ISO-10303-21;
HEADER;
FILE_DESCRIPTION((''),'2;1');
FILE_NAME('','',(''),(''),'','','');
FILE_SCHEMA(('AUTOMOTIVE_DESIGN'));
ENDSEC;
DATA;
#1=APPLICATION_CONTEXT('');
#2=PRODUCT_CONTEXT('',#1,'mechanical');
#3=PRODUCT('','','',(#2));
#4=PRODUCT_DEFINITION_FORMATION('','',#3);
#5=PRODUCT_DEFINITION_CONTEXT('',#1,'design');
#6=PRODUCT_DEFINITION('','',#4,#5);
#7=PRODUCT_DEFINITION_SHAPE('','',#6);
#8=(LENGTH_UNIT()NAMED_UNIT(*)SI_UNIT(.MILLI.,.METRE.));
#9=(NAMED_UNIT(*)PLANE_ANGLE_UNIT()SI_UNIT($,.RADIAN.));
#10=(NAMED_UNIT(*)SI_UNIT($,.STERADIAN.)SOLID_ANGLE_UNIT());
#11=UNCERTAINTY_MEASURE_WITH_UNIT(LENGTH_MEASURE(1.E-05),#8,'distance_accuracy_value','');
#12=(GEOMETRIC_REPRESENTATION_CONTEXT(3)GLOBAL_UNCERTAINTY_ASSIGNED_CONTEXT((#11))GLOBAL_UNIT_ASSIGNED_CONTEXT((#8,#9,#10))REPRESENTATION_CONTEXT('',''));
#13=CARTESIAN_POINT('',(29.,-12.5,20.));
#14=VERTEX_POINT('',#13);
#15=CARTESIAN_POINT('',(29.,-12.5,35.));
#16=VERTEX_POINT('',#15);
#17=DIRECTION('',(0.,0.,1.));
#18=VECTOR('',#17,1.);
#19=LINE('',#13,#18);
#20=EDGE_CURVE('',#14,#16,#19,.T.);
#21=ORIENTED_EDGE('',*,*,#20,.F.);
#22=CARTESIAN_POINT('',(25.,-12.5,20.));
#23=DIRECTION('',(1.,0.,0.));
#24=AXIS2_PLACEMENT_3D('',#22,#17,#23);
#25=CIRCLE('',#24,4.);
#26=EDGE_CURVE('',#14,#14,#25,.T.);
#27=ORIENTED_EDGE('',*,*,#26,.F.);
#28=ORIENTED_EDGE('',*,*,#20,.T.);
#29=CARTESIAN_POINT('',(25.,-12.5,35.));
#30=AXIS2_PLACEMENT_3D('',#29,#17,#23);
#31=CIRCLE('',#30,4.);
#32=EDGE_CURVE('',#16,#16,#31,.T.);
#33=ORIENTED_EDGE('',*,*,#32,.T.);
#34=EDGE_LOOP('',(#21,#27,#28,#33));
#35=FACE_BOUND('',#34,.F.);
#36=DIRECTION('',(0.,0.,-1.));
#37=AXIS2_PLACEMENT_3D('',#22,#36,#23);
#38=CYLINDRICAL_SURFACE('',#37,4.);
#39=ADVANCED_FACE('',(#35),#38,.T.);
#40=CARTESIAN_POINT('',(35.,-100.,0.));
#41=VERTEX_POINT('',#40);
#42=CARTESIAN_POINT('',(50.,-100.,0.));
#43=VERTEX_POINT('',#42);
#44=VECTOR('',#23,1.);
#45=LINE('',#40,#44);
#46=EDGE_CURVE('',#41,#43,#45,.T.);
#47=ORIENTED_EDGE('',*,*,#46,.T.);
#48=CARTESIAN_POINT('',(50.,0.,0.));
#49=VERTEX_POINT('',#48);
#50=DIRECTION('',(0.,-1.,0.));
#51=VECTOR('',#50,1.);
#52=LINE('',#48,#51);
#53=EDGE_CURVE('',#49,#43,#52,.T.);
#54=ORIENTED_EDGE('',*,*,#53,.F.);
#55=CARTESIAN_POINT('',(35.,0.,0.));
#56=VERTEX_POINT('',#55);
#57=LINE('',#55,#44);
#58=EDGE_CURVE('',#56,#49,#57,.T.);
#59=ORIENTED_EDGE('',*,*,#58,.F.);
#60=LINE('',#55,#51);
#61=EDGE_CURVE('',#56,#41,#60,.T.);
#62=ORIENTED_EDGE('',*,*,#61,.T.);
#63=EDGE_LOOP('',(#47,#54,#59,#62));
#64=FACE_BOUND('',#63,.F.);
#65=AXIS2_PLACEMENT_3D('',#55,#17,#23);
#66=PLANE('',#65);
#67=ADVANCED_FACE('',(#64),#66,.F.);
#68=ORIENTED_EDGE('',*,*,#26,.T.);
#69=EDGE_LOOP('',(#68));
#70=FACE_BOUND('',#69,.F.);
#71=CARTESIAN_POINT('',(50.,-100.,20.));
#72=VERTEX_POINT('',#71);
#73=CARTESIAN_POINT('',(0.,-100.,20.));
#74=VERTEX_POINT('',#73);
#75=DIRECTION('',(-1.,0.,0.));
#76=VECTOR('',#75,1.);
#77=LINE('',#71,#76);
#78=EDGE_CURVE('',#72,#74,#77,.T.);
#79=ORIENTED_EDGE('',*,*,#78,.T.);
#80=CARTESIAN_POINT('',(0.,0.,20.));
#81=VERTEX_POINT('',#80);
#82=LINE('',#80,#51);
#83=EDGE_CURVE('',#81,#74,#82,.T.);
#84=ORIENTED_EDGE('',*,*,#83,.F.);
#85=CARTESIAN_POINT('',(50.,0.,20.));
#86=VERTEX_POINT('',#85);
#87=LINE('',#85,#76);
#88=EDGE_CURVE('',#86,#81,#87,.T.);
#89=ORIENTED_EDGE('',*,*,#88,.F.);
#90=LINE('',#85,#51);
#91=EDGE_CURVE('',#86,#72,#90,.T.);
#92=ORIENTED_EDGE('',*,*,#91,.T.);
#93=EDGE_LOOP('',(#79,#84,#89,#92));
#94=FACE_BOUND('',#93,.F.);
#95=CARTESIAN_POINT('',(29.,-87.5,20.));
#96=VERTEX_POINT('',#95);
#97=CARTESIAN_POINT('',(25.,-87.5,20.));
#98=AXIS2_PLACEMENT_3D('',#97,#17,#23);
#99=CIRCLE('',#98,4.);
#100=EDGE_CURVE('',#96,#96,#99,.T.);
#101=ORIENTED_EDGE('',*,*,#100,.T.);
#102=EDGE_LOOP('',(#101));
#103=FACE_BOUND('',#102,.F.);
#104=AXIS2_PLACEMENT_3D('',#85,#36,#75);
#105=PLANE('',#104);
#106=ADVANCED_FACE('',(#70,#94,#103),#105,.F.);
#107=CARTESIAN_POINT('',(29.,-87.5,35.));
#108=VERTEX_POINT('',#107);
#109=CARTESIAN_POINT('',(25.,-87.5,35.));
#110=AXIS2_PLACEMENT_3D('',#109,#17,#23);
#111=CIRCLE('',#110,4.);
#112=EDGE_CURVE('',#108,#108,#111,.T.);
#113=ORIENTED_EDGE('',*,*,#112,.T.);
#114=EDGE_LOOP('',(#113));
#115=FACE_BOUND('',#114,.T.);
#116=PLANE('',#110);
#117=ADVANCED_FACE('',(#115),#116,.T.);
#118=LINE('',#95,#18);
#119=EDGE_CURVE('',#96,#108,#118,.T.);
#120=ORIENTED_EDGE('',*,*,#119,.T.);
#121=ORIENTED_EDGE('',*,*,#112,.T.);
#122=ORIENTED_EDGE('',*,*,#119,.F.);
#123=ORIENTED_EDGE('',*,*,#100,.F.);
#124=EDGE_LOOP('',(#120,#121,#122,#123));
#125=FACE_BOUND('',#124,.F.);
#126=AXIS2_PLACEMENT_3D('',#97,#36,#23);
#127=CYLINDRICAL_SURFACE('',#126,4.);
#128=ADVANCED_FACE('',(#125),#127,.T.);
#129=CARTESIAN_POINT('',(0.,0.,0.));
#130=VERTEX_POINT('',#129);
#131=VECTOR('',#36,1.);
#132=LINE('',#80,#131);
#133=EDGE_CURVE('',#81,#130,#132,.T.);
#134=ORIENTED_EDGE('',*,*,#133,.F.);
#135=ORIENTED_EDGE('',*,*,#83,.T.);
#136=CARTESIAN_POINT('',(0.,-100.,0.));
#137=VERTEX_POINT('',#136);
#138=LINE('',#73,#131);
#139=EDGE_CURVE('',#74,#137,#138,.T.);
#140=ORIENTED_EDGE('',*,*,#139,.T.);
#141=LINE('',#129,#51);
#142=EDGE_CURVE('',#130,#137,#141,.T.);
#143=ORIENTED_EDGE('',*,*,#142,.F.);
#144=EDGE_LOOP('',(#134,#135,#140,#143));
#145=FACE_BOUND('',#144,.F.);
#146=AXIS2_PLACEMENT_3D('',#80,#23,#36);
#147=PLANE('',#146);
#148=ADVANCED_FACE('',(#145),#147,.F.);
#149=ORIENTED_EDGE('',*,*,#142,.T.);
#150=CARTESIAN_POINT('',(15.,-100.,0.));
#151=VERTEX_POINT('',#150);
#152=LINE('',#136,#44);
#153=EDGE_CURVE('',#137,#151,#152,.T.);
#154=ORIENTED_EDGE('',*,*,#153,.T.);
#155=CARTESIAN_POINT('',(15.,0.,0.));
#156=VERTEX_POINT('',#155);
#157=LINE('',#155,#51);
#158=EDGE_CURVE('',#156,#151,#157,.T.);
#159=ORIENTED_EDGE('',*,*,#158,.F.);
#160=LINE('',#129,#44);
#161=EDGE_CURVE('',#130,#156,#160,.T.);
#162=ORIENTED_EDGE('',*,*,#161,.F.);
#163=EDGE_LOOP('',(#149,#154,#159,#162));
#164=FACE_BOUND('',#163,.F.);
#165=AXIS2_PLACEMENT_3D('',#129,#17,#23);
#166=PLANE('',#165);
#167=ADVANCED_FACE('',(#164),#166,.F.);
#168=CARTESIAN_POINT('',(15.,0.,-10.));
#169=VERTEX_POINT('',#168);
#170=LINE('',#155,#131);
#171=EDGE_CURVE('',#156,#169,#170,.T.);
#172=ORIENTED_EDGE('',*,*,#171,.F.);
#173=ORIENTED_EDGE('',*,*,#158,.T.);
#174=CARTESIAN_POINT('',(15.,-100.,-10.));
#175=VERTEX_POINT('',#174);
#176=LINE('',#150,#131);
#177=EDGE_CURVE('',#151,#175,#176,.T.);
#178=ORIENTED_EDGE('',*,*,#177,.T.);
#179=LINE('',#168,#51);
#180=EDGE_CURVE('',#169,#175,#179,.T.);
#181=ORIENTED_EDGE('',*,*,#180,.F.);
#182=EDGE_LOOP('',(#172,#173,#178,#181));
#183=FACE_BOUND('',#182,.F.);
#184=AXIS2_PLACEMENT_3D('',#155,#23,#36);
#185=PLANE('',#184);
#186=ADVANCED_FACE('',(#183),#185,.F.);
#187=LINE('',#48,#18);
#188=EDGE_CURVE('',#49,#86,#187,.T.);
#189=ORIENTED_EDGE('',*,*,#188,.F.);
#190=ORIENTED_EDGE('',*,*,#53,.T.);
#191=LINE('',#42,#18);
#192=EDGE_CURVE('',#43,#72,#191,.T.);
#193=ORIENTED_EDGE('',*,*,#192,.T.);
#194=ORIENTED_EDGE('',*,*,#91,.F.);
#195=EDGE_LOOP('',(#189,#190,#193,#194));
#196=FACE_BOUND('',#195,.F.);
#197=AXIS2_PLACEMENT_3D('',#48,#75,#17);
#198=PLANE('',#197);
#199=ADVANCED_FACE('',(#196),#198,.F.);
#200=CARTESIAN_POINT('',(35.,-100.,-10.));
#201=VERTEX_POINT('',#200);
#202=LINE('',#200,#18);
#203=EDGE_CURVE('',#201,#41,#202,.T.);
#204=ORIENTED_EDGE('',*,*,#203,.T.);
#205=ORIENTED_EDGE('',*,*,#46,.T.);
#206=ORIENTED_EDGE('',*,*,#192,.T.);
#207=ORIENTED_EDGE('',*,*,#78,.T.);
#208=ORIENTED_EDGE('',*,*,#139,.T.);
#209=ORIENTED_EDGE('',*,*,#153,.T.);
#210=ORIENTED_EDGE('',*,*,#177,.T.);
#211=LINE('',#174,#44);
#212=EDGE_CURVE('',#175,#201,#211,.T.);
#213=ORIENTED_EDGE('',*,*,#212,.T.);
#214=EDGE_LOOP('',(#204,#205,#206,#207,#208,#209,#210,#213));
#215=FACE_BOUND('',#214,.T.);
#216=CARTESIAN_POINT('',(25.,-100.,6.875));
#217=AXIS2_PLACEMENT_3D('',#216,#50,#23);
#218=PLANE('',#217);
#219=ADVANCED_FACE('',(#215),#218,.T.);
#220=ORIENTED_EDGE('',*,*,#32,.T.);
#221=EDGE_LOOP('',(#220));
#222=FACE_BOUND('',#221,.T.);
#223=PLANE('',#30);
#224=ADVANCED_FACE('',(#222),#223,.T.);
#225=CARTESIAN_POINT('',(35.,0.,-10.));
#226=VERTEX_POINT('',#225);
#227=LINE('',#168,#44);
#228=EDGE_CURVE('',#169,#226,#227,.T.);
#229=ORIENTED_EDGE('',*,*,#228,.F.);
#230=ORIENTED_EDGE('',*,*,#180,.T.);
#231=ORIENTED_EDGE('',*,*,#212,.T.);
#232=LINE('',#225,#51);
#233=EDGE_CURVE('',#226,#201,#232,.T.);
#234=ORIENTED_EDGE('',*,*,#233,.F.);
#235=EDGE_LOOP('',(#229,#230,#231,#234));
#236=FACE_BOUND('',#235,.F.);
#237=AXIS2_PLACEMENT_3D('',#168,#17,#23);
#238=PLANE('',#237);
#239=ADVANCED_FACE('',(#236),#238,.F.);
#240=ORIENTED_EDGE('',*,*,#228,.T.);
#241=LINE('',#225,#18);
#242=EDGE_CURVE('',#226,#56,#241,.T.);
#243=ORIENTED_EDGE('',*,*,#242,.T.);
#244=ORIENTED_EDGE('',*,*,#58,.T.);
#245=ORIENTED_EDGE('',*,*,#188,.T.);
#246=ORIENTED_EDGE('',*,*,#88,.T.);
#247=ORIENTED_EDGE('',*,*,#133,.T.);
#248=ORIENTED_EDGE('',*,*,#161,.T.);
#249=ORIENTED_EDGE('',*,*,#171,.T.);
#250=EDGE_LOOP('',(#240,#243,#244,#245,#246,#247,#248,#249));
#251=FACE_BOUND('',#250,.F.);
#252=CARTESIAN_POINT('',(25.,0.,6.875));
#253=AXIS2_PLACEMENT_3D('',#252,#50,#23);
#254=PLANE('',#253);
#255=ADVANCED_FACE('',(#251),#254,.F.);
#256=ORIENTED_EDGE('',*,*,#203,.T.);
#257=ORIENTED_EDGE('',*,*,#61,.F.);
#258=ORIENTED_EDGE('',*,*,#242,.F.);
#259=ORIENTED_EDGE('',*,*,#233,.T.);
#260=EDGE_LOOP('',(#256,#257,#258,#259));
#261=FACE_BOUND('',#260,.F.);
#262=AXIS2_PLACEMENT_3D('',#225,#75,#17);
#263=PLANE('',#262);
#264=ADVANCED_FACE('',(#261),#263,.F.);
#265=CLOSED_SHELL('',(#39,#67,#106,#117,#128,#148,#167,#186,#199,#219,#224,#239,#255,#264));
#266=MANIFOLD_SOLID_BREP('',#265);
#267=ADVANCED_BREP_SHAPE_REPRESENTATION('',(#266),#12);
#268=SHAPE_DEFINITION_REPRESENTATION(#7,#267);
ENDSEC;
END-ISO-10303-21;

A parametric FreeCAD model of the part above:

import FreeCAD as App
import Part
import Sketcher
from FreeCAD import Vector

doc = App.newDocument("Part")
body = doc.addObject("PartDesign::Body", "Body")

sketch1 = body.newObject("Sketcher::SketchObject", "Sketch")
sketch1.AttachmentSupport = (doc.getObject("XZ_Plane"), [""])
sketch1.MapMode = "FlatFace"
sketch1.addGeometry([
    Part.LineSegment(Vector(0, 20, 0), Vector(0, 0, 0)),
    Part.LineSegment(Vector(0, 0, 0), Vector(15, 0, 0)),
    Part.LineSegment(Vector(15, 0, 0), Vector(15, -10, 0)),
    Part.LineSegment(Vector(15, -10, 0), Vector(35, -10, 0)),
    Part.LineSegment(Vector(35, -10, 0), Vector(35, 0, 0)),
    Part.LineSegment(Vector(35, 0, 0), Vector(50, 0, 0)),
    Part.LineSegment(Vector(50, 0, 0), Vector(50, 20, 0)),
    Part.LineSegment(Vector(50, 20, 0), Vector(0, 20, 0)),
], False)
sketch1.addConstraint([
    Sketcher.Constraint("Coincident", 0, 2, 1, 1),
    Sketcher.Constraint("Coincident", 1, 2, 2, 1),
    Sketcher.Constraint("Coincident", 2, 2, 3, 1),
    Sketcher.Constraint("Coincident", 3, 2, 4, 1),
    Sketcher.Constraint("Coincident", 4, 2, 5, 1),
    Sketcher.Constraint("Coincident", 5, 2, 6, 1),
    Sketcher.Constraint("Coincident", 6, 2, 7, 1),
    Sketcher.Constraint("Coincident", 7, 2, 0, 1),
    Sketcher.Constraint("Vertical", 0),
    Sketcher.Constraint("Horizontal", 1),
    Sketcher.Constraint("Vertical", 2),
    Sketcher.Constraint("Horizontal", 3),
    Sketcher.Constraint("Vertical", 4),
    Sketcher.Constraint("Horizontal", 5),
    Sketcher.Constraint("Vertical", 6),
    Sketcher.Constraint("Horizontal", 7),
    Sketcher.Constraint("Coincident", 0, 2, -1, 1),
    Sketcher.Constraint("PointOnObject", 4, 2, -1),
    Sketcher.Constraint("Equal", 1, 5),
    Sketcher.Constraint("Equal", 3, 0),
    Sketcher.Constraint("DistanceX", 1, 1, 1, 2, 15.0),
    Sketcher.Constraint("DistanceX", 3, 1, 3, 2, 20.0),
    Sketcher.Constraint("DistanceY", 2, 2, 2, 1, 10.0),
])
pad1 = body.newObject("PartDesign::Pad", "Pad")
pad1.Profile = sketch1
pad1.Length = 100

sketch2 = body.newObject("Sketcher::SketchObject", "Sketch001")
sketch2.AttachmentSupport = (doc.getObject("XY_Plane"), [""])
sketch2.MapMode = "FlatFace"
sketch2.AttachmentOffset = App.Placement(Vector(0, 0, 20), App.Rotation())
sketch2.addGeometry([
    Part.Circle(Vector(25, -12.5, 0), Vector(0, 0, 1), 4),
    Part.Circle(Vector(25, -87.5, 0), Vector(0, 0, 1), 4),
], False)
sketch2.addConstraint([
    Sketcher.Constraint("Equal", 0, 1),
    Sketcher.Constraint("Vertical", 0, 3, 1, 3),
    Sketcher.Constraint("Diameter", 0, 8.0),
    Sketcher.Constraint("DistanceX", -1, 1, 0, 3, 25.0),
    Sketcher.Constraint("DistanceY", 1, 3, 0, 3, 75.0),
    Sketcher.Constraint("DistanceY", 0, 3, -1, 1, 12.5),
])
pad2 = body.newObject("PartDesign::Pad", "Pad001")
pad2.Profile = sketch2
pad2.Length = 15

doc.recompute()
